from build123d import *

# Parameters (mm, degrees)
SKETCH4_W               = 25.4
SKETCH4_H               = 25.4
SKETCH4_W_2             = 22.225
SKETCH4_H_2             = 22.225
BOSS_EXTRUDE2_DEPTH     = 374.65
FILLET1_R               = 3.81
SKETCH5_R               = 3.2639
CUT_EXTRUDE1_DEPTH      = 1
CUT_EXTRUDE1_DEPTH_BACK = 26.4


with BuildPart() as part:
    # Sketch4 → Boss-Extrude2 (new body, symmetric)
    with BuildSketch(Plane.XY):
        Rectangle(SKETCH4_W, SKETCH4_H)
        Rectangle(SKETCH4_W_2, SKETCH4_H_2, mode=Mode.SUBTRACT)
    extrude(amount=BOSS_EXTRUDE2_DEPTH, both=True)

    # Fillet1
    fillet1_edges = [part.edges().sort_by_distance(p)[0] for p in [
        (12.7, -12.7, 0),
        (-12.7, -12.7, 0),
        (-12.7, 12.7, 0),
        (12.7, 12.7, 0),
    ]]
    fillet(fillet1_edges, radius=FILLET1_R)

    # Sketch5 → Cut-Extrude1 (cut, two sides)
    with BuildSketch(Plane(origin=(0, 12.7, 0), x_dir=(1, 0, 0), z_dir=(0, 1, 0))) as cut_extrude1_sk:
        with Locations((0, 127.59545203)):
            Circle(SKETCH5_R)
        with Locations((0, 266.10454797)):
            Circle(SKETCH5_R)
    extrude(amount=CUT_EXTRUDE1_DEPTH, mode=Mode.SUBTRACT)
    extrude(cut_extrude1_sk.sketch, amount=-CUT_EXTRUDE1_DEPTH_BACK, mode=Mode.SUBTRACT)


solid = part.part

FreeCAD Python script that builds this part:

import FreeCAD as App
import Part
import Sketcher
Q = App.Units.Quantity


def edges_at(feature, points):
    """Names of the edges that pass closest to the given points."""
    edges = feature.Shape.Edges
    near = lambda p: min(range(len(edges)), key=lambda i: edges[i].distToShape(Part.Vertex(*p))[0])
    return sorted({f"Edge{near(p) + 1}" for p in points})

doc = App.newDocument("Part")
body = doc.addObject("PartDesign::Body", "Body")

# Sketch on XY plane
sketch1 = body.newObject("Sketcher::SketchObject", "Sketch")
sketch1.AttachmentSupport = (doc.getObject("XY_Plane"), [""])
sketch1.MapMode = "FlatFace"
sketch1.addGeometry([
    Part.LineSegment(App.Vector(-13, 13, 0), App.Vector(-13, -13, 0)),  # 0
    Part.LineSegment(App.Vector(-13, -13, 0), App.Vector(13, -13, 0)),  # 1
    Part.LineSegment(App.Vector(13, -13, 0), App.Vector(13, 13, 0)),  # 2
    Part.LineSegment(App.Vector(13, 13, 0), App.Vector(-13, 13, 0)),  # 3
    Part.LineSegment(App.Vector(11, -11, 0), App.Vector(-11, -11, 0)),  # 4
    Part.LineSegment(App.Vector(-11, -11, 0), App.Vector(-11, 11, 0)),  # 5
    Part.LineSegment(App.Vector(-11, 11, 0), App.Vector(11, 11, 0)),  # 6
    Part.LineSegment(App.Vector(11, 11, 0), App.Vector(11, -11, 0)),  # 7
], False)
sketch1.addConstraint([
    Sketcher.Constraint("Coincident", 0, 2, 1, 1),
    Sketcher.Constraint("Coincident", 1, 2, 2, 1),
    Sketcher.Constraint("Coincident", 2, 2, 3, 1),
    Sketcher.Constraint("Coincident", 3, 2, 0, 1),
    Sketcher.Constraint("Coincident", 4, 2, 5, 1),
    Sketcher.Constraint("Coincident", 5, 2, 6, 1),
    Sketcher.Constraint("Coincident", 6, 2, 7, 1),
    Sketcher.Constraint("Coincident", 7, 2, 4, 1),
    Sketcher.Constraint("Vertical", 0),
    Sketcher.Constraint("Horizontal", 1),
    Sketcher.Constraint("Vertical", 2),
    Sketcher.Constraint("Horizontal", 3),
    Sketcher.Constraint("Horizontal", 4),
    Sketcher.Constraint("Vertical", 5),
    Sketcher.Constraint("Horizontal", 6),
    Sketcher.Constraint("Vertical", 7),
    Sketcher.Constraint("Symmetric", 0, 2, 2, 2, -1, 1),
    Sketcher.Constraint("Symmetric", 4, 2, 6, 2, -1, 1),
    Sketcher.Constraint("Equal", 3, 0),
    Sketcher.Constraint("Equal", 6, 5),
    Sketcher.Constraint("DistanceX", 1, 1, 1, 2, Q("1 in")),
    Sketcher.Constraint("DistanceX", 4, 2, 4, 1, Q("0.875 in")),
])
pad1 = body.newObject("PartDesign::Pad", "Pad")
pad1.Profile = sketch1
pad1.Length = Q("29.5 in")
pad1.Midplane = True
doc.recompute()

fillet = body.newObject("PartDesign::Fillet", "Fillet")
fillet.Base = (pad1, edges_at(pad1, [
    (12.7, -12.7, 0),
    (-12.7, -12.7, 0),
    (-12.7, 12.7, 0),
    (12.7, 12.7, 0),
]))
fillet.Radius = Q("0.15 in")

# Sketch on XZ plane
sketch2 = body.newObject("Sketcher::SketchObject", "Sketch001")
sketch2.AttachmentSupport = (doc.getObject("XZ_Plane"), [""])
sketch2.MapMode = "FlatFace"
sketch2.AttachmentOffset = App.Placement(App.Vector(0, 0, -0.5 * 25.4), App.Rotation())
sketch2.addGeometry([
    Part.Circle(App.Vector(0, -127.6, 0), App.Vector(0, 0, 1), 3.3),
    Part.Circle(App.Vector(0, -266.1, 0), App.Vector(0, 0, 1), 3.3),
], False)
sketch2.addConstraint([
    Sketcher.Constraint("Equal", 0, 1),
    Sketcher.Constraint("PointOnObject", 0, 3, -2),
    Sketcher.Constraint("PointOnObject", 1, 3, -2),
    Sketcher.Constraint("Diameter", 0, Q("0.257 in")),
    Sketcher.Constraint("DistanceY", 0, 3, -1, 1, Q("127.595452 mm")),
    Sketcher.Constraint("DistanceY", 1, 3, -1, 1, Q("266.104548 mm")),
])
pocket1 = body.newObject("PartDesign::Pocket", "Pocket")
pocket1.Profile = sketch2
pocket1.Type = "ThroughAll"
pocket1.Midplane = True

doc.recompute()
